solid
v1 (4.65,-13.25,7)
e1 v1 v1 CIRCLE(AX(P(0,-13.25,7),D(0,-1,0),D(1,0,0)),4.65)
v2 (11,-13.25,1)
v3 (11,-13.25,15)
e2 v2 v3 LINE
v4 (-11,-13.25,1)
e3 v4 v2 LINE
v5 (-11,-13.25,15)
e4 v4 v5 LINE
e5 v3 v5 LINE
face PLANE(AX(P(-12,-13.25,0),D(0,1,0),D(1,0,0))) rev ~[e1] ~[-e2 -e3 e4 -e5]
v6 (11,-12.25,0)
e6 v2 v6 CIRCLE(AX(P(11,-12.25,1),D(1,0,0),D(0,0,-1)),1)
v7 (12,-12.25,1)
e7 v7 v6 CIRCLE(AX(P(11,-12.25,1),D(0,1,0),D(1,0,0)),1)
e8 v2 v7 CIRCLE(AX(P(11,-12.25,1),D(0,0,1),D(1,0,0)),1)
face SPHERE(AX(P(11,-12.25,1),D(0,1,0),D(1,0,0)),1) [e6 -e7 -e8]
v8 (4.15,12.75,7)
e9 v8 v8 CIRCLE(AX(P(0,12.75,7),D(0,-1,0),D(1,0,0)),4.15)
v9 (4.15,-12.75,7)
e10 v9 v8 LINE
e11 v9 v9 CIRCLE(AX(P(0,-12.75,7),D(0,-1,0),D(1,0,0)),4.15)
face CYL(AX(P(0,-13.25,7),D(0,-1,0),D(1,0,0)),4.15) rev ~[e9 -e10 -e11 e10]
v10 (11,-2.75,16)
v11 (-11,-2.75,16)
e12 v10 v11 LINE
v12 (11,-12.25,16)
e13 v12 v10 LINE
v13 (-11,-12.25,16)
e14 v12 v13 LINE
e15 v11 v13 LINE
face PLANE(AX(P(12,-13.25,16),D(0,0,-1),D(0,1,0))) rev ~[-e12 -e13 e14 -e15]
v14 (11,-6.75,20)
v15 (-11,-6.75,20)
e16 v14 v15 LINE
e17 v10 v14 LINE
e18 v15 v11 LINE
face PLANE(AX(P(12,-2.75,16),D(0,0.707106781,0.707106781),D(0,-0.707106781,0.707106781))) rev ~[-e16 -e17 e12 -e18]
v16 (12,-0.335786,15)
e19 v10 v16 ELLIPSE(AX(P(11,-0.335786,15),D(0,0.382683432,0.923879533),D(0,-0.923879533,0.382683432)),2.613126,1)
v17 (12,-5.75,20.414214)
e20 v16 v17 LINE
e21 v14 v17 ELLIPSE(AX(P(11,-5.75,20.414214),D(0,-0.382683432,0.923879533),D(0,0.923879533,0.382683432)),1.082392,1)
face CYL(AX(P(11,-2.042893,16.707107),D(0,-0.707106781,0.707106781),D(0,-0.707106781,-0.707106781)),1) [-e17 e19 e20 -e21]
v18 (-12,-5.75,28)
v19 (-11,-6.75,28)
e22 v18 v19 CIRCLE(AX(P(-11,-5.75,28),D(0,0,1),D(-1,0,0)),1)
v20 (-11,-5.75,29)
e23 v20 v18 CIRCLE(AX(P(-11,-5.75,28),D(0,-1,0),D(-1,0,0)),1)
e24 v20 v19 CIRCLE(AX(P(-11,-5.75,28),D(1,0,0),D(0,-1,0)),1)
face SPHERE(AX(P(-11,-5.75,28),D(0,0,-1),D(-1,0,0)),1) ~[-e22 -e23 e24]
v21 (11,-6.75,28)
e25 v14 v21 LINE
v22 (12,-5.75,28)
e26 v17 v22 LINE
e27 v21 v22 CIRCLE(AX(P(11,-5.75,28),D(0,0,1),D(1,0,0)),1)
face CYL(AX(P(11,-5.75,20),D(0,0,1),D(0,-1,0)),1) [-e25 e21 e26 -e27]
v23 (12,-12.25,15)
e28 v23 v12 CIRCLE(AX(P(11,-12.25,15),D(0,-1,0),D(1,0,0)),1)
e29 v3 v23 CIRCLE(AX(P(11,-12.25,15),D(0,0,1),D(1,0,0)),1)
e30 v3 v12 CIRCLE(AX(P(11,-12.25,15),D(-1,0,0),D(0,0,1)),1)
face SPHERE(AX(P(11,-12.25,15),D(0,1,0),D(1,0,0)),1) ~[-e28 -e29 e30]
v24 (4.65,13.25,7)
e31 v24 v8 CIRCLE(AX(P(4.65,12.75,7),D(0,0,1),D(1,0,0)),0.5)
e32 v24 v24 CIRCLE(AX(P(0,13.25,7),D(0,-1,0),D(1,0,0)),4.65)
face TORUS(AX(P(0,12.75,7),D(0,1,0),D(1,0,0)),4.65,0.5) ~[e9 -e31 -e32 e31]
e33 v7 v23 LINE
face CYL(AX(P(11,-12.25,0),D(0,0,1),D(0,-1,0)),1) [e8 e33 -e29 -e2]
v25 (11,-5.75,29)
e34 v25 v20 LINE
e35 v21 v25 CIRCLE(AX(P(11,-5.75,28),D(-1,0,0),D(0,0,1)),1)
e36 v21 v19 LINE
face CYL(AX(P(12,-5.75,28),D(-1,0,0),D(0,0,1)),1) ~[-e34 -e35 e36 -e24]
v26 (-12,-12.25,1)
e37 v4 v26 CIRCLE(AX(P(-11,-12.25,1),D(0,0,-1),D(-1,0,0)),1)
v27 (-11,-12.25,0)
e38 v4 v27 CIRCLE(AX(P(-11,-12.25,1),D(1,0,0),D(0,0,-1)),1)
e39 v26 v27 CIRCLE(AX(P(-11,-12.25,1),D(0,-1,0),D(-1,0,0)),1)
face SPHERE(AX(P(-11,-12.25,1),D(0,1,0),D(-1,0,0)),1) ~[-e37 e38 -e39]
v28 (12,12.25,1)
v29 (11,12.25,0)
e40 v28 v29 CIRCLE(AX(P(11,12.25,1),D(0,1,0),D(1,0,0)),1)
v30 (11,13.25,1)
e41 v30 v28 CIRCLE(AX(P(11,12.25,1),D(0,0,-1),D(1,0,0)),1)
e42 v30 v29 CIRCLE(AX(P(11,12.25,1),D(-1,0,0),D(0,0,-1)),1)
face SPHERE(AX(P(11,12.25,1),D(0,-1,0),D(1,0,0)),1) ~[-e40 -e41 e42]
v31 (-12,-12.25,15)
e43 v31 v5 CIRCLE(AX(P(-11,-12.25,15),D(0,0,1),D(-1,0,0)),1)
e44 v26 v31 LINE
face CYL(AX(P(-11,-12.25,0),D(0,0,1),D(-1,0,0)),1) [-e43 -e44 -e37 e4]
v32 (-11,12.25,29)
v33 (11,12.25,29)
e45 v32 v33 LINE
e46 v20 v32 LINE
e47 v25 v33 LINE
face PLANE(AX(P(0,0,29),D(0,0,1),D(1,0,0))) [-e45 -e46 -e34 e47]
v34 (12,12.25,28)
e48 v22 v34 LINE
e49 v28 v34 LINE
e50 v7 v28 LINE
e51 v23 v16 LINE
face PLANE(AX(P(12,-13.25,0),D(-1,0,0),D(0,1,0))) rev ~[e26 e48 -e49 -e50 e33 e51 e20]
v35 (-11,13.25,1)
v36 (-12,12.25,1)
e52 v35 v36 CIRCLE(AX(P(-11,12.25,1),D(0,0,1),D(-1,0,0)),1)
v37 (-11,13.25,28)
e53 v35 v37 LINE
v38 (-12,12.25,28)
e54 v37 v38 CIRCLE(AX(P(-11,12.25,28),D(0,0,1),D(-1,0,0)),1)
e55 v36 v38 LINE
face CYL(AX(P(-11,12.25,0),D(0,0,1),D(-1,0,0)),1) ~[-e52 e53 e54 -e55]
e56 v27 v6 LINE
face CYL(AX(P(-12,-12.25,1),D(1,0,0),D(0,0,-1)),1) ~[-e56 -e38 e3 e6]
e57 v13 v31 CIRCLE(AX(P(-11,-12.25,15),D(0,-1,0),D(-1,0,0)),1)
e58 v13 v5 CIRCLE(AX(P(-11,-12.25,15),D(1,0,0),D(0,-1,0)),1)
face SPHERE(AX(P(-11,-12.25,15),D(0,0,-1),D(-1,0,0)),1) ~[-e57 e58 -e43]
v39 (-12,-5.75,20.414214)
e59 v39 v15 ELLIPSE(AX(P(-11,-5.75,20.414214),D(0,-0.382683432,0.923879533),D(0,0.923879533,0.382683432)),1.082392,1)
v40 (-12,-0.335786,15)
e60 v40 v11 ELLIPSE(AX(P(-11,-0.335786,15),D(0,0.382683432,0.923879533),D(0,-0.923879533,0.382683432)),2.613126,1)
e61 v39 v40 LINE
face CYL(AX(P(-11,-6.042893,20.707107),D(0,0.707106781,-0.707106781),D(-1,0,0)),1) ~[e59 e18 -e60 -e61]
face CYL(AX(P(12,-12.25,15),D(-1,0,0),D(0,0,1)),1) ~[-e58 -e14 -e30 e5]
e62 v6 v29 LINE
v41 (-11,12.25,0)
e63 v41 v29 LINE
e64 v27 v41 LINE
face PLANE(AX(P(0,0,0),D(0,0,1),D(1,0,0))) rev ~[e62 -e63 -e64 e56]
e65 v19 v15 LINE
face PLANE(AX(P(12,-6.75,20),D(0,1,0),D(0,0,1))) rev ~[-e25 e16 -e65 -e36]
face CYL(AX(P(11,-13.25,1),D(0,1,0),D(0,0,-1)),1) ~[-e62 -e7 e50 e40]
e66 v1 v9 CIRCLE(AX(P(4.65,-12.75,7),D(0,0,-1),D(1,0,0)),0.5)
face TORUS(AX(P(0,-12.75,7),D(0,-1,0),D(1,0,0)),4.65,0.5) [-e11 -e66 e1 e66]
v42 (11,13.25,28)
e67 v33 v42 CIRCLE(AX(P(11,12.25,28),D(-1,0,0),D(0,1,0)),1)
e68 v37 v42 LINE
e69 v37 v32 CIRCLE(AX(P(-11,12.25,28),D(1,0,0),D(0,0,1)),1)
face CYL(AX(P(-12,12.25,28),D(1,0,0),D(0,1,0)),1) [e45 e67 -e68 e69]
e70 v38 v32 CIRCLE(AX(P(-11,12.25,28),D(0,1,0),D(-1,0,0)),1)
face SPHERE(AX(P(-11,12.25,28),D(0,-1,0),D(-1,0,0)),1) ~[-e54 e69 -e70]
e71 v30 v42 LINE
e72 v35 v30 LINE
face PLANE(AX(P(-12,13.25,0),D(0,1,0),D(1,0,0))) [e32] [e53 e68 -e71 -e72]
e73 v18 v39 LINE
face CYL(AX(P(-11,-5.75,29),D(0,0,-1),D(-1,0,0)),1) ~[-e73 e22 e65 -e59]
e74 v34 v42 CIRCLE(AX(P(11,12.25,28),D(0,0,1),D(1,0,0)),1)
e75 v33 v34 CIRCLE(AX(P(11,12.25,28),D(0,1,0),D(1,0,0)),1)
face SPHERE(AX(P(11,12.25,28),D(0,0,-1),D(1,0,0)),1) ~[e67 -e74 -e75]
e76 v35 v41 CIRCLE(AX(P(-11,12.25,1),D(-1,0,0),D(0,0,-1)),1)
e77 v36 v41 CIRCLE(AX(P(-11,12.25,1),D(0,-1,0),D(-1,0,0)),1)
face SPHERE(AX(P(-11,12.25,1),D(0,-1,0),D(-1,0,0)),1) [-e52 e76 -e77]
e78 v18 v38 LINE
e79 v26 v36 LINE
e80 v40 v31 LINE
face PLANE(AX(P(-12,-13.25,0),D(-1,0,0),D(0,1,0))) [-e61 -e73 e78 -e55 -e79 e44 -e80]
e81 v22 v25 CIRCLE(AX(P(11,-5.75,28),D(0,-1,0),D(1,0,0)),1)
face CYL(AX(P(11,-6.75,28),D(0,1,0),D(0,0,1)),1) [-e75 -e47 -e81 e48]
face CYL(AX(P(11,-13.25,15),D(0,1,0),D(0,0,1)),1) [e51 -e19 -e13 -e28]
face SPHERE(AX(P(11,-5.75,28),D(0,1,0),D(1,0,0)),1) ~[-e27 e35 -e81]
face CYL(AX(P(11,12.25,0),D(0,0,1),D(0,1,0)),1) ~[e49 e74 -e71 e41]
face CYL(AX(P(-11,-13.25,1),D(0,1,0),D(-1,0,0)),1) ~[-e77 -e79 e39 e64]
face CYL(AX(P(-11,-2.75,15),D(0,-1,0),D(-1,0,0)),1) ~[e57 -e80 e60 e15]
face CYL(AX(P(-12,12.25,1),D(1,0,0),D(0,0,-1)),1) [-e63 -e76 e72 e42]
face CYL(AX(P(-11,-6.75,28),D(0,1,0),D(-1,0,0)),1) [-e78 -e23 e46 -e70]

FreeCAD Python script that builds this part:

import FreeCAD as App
import Part
import Sketcher

V = App.Vector
Q = App.Units.Quantity


def edges_at(feature, points):
    """Names of the edges that pass closest to the given points."""
    edges = feature.Shape.Edges
    near = lambda p: min(range(len(edges)), key=lambda i: edges[i].distToShape(Part.Vertex(*p))[0])
    return sorted({f"Edge{near(p) + 1}" for p in points})

doc = App.newDocument("Part")
body = doc.addObject("PartDesign::Body", "Body")

sketch1 = doc.addObject("Sketcher::SketchObject", "Sketch")
body.addObject(sketch1)
sketch1.AttachmentSupport = (doc.XY_Plane, [""])
sketch1.MapMode = "FlatFace"
sketch1.addGeometry(Part.LineSegment(V(-12, 13, 0), V(-12, -13, 0)), False)
sketch1.addGeometry(Part.LineSegment(V(-12, -13, 0), V(12, -13, 0)), False)
sketch1.addGeometry(Part.LineSegment(V(12, -13, 0), V(12, 13, 0)), False)
sketch1.addGeometry(Part.LineSegment(V(12, 13, 0), V(-12, 13, 0)), False)
sketch1.addConstraint(Sketcher.Constraint("Coincident", 0, 2, 1, 1))
sketch1.addConstraint(Sketcher.Constraint("Coincident", 1, 2, 2, 1))
sketch1.addConstraint(Sketcher.Constraint("Coincident", 2, 2, 3, 1))
sketch1.addConstraint(Sketcher.Constraint("Coincident", 3, 2, 0, 1))
sketch1.addConstraint(Sketcher.Constraint("Vertical", 0))
sketch1.addConstraint(Sketcher.Constraint("Horizontal", 1))
sketch1.addConstraint(Sketcher.Constraint("Vertical", 2))
sketch1.addConstraint(Sketcher.Constraint("Horizontal", 3))
sketch1.addConstraint(Sketcher.Constraint("Symmetric", 0, 2, 2, 2, -1, 1))
sketch1.addConstraint(Sketcher.Constraint("DistanceX", 1, 1, 1, 2, 24.0))
sketch1.addConstraint(Sketcher.Constraint("DistanceY", 0, 2, 0, 1, 26.5))
pad1 = doc.addObject("PartDesign::Pad", "Pad")
body.addObject(pad1)
pad1.Profile = sketch1
pad1.Length = 29

sketch2 = doc.addObject("Sketcher::SketchObject", "Sketch001")
body.addObject(sketch2)
sketch2.AttachmentSupport = (doc.YZ_Plane, [""])
sketch2.MapMode = "FlatFace"
sketch2.AttachmentOffset = App.Placement(V(0, 0, 12), App.Rotation())
sketch2.addGeometry(Part.LineSegment(V(-7, 20, 0), V(-7, 29, 0)), False)
sketch2.addGeometry(Part.LineSegment(V(-7, 29, 0), V(-13, 29, 0)), False)
sketch2.addGeometry(Part.LineSegment(V(-13, 29, 0), V(-13, 16, 0)), False)
sketch2.addGeometry(Part.LineSegment(V(-13, 16, 0), V(-3, 16, 0)), False)
sketch2.addGeometry(Part.LineSegment(V(-3, 16, 0), V(-7, 20, 0)), False)
sketch2.addConstraint(Sketcher.Constraint("Coincident", 0, 2, 1, 1))
sketch2.addConstraint(Sketcher.Constraint("Coincident", 1, 2, 2, 1))
sketch2.addConstraint(Sketcher.Constraint("Coincident", 2, 2, 3, 1))
sketch2.addConstraint(Sketcher.Constraint("Coincident", 3, 2, 4, 1))
sketch2.addConstraint(Sketcher.Constraint("Coincident", 4, 2, 0, 1))
sketch2.addConstraint(Sketcher.Constraint("Vertical", 0))
sketch2.addConstraint(Sketcher.Constraint("Horizontal", 1))
sketch2.addConstraint(Sketcher.Constraint("Vertical", 2))
sketch2.addConstraint(Sketcher.Constraint("Horizontal", 3))
sketch2.addConstraint(Sketcher.Constraint("DistanceY", 0, 1, 0, 2, 9.0))
sketch2.addConstraint(Sketcher.Constraint("DistanceY", 2, 2, 2, 1, 13.0))
sketch2.addConstraint(Sketcher.Constraint("Angle", 4, Q("135 deg")))
sketch2.addConstraint(Sketcher.Constraint("DistanceX", 1, 2, 1, 1, 6.5))
sketch2.addConstraint(Sketcher.Constraint("DistanceY", -1, 1, 0, 2, 29.0))
sketch2.addConstraint(Sketcher.Constraint("DistanceX", 0, 2, -1, 1, 6.75))
pocket1 = doc.addObject("PartDesign::Pocket", "Pocket")
body.addObject(pocket1)
pocket1.Profile = sketch2
pocket1.Length = 25

sketch3 = doc.addObject("Sketcher::SketchObject", "Sketch002")
body.addObject(sketch3)
sketch3.AttachmentSupport = (doc.XZ_Plane, [""])
sketch3.MapMode = "FlatFace"
sketch3.AttachmentOffset = App.Placement(V(0, 0, 13.25), App.Rotation())
sketch3.addGeometry(Part.Circle(V(0, 7, 0), V(0, 0, 1), 4.2), False)
sketch3.addConstraint(Sketcher.Constraint("PointOnObject", 0, 3, -2))
sketch3.addConstraint(Sketcher.Constraint("Diameter", 0, 8.3))
sketch3.addConstraint(Sketcher.Constraint("DistanceY", -1, 1, 0, 3, 7.0))
pocket2 = doc.addObject("PartDesign::Pocket", "Pocket001")
body.addObject(pocket2)
pocket2.Profile = sketch3
pocket2.Length = 31
doc.recompute()

fillet = doc.addObject("PartDesign::Fillet", "Fillet")
body.addObject(fillet)
fillet.Base = (pocket2, edges_at(pocket2, [
    (12, 0, 0),
    (12, 13.25, 14.5),
    (12, 3.25, 29),
    (12, -6.75, 24.5),
    (12, -4.75, 18),
    (12, -8, 16),
    (12, -13.25, 8),
    (-12, 0, 0),
    (-12, -13.25, 8),
    (-12, -8, 16),
    (-12, -4.75, 18),
    (-12, -6.75, 24.5),
    (-12, 3.25, 29),
    (-12, 13.25, 14.5),
    (0, -6.75, 29),
    (0, 13.25, 29),
    (0, 13.25, 0),
    (0, -13.25, 0),
    (0, -13.25, 16),
]))
fillet.Radius = 1
doc.recompute()

fillet2 = doc.addObject("PartDesign::Fillet", "Fillet001")
body.addObject(fillet2)
fillet2.Base = (fillet, edges_at(fillet, [(-4.15, 13.25, 7), (-4.15, -13.25, 7)]))
fillet2.Radius = 0.5

doc.recompute()
